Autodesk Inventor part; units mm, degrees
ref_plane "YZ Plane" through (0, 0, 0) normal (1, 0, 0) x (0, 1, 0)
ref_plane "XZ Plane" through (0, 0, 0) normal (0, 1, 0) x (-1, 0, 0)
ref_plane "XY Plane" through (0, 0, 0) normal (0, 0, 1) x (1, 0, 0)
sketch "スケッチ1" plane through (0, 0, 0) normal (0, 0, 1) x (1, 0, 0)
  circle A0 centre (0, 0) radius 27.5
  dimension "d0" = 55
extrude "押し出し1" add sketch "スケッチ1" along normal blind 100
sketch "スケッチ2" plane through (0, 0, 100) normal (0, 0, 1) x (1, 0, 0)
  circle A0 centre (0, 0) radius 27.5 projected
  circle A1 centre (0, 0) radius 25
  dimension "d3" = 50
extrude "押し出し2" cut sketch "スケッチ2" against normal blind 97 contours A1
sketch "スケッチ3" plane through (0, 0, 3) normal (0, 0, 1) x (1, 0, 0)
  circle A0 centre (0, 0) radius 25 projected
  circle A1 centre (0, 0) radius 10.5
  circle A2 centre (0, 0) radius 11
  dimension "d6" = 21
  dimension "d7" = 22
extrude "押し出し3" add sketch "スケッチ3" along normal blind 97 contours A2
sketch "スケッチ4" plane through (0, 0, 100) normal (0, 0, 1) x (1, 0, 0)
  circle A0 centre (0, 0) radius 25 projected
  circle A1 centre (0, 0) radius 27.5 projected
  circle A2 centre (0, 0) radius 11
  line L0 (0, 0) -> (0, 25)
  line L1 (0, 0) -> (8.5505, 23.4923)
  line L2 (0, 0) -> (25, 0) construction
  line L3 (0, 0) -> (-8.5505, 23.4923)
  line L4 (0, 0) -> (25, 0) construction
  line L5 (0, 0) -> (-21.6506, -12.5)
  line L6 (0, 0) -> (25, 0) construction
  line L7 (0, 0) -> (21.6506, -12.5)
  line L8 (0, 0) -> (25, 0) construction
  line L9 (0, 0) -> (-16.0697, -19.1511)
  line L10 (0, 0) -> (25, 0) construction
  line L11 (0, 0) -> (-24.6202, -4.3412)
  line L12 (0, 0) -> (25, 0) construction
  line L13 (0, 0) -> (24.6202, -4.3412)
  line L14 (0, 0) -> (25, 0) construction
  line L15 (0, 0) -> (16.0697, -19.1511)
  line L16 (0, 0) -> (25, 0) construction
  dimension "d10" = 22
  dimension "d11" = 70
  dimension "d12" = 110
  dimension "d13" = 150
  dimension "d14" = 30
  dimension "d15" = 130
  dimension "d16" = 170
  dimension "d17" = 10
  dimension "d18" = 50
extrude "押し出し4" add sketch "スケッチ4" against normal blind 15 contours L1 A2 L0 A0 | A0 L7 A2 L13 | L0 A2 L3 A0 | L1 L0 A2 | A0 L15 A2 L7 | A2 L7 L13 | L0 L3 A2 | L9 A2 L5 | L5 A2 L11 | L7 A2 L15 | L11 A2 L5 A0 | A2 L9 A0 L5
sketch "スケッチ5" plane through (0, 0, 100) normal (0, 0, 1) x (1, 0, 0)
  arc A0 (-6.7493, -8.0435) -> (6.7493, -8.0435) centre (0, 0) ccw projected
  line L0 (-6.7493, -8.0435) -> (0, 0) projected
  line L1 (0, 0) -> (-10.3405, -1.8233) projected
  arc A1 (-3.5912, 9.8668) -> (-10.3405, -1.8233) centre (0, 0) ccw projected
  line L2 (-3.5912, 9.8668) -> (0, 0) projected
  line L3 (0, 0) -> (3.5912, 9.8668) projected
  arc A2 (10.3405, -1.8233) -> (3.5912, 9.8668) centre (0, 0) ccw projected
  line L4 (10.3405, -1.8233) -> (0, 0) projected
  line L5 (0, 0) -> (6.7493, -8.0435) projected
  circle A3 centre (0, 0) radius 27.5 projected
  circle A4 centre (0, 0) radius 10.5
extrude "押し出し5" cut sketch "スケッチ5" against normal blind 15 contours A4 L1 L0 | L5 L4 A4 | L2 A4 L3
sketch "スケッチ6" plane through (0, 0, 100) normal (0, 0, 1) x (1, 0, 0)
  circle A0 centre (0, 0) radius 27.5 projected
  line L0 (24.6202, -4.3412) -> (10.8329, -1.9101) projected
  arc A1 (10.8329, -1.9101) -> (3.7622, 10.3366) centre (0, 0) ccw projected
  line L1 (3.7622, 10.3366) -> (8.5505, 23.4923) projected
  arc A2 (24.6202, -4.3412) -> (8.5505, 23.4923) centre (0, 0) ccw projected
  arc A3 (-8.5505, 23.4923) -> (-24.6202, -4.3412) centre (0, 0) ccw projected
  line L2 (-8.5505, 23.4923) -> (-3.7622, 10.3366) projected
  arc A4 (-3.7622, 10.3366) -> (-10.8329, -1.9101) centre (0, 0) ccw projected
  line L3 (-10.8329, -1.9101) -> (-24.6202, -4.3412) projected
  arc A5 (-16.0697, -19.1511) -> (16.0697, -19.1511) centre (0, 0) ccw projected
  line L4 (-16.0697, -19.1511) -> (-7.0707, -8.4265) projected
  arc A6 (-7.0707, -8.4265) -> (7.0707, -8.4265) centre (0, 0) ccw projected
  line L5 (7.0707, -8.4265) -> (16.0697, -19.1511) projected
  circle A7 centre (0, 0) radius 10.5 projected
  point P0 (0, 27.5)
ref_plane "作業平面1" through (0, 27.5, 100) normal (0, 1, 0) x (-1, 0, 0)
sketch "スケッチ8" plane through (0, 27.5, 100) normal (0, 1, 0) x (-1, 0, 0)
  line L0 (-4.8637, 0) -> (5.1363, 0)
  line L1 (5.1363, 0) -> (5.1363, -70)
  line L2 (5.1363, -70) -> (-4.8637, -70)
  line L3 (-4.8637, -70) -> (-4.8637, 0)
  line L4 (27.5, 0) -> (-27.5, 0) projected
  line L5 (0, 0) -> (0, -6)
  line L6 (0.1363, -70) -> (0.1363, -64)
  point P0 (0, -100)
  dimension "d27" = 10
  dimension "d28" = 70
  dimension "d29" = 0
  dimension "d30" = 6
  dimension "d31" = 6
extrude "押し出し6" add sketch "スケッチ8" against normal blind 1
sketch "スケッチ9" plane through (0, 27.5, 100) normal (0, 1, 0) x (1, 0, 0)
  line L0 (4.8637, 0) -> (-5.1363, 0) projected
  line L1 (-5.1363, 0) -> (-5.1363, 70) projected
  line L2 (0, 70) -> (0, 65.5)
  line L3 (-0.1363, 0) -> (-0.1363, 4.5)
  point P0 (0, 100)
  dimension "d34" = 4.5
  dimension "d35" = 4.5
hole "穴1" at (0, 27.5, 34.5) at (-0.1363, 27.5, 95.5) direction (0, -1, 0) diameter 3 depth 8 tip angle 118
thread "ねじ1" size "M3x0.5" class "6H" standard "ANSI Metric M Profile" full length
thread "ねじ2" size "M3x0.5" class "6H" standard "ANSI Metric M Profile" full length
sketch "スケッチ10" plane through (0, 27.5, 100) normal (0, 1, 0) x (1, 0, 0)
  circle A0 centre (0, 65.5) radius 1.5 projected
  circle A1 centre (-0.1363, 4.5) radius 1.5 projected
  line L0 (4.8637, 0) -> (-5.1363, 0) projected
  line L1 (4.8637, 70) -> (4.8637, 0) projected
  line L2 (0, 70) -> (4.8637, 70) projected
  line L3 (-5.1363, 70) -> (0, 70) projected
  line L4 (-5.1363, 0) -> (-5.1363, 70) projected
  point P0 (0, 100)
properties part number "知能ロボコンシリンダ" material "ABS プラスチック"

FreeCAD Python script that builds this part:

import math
import FreeCAD as App
import Part
import Sketcher
from FreeCAD import Vector
Q = App.Units.Quantity

doc = App.newDocument("Part")
body = doc.addObject("PartDesign::Body", "Body")

# Sketch on XY plane
sketch1 = body.newObject("Sketcher::SketchObject", "Sketch")
sketch1.AttachmentSupport = (doc.getObject("XY_Plane"), [""])
sketch1.MapMode = "FlatFace"
sketch1.addGeometry(Part.Circle(Vector(0, 0, 0), Vector(0, 0, 1), 27.5), False)
sketch1.addConstraint(Sketcher.Constraint("Coincident", 0, 3, -1, 1))
sketch1.addConstraint(Sketcher.Constraint("Diameter", 0, 55.0))
pad1 = body.newObject("PartDesign::Pad", "Pad")
pad1.Profile = sketch1
pad1.Length = 100

# Sketch on XY plane
sketch2 = body.newObject("Sketcher::SketchObject", "Sketch001")
sketch2.AttachmentSupport = (doc.getObject("XY_Plane"), [""])
sketch2.MapMode = "FlatFace"
sketch2.AttachmentOffset = App.Placement(Vector(0, 0, 100), App.Rotation())
sketch2.addGeometry(Part.Circle(Vector(0, 0, 0), Vector(0, 0, 1), 25), False)
sketch2.addConstraint(Sketcher.Constraint("Coincident", 0, 3, -1, 1))
sketch2.addConstraint(Sketcher.Constraint("Diameter", 0, 50.0))
pocket1 = body.newObject("PartDesign::Pocket", "Pocket")
pocket1.Profile = sketch2
pocket1.Length = 97

# Sketch on XY plane
sketch3 = body.newObject("Sketcher::SketchObject", "Sketch002")
sketch3.AttachmentSupport = (doc.getObject("XY_Plane"), [""])
sketch3.MapMode = "FlatFace"
sketch3.AttachmentOffset = App.Placement(Vector(0, 0, 3), App.Rotation())
sketch3.addGeometry(Part.Circle(Vector(0, 0, 0), Vector(0, 0, 1), 11), False)
sketch3.addGeometry(Part.Circle(Vector(0, 0, 0), Vector(0, 0, 1), 10.5), False)
sketch3.addConstraint(Sketcher.Constraint("Coincident", 0, 3, -1, 1))
sketch3.addConstraint(Sketcher.Constraint("Coincident", 1, 3, -1, 1))
sketch3.addConstraint(Sketcher.Constraint("Diameter", 0, 22.0))
sketch3.addConstraint(Sketcher.Constraint("Diameter", 1, 21.0))
pad2 = body.newObject("PartDesign::Pad", "Pad001")
pad2.Profile = sketch3
pad2.Length = 97

# Sketch on XY plane
sketch4 = body.newObject("Sketcher::SketchObject", "Sketch003")
sketch4.AttachmentSupport = (doc.getObject("XY_Plane"), [""])
sketch4.MapMode = "FlatFace"
sketch4.AttachmentOffset = App.Placement(Vector(0, 0, 100), App.Rotation())
sketch4.addGeometry(Part.ArcOfCircle(Part.Circle(Vector(0, 0, 0), Vector(0, 0, 1), 25), math.radians(69.999996), math.radians(110.000004)), False)
sketch4.addGeometry(Part.LineSegment(Vector(-8.5505, 23.4923, 0), Vector(0, 0, 0)), False)
sketch4.addGeometry(Part.LineSegment(Vector(0, 0, 0), Vector(8.5505, 23.4923, 0)), False)
sketch4.addGeometry(Part.LineSegment(Vector(24.6202, -4.3412, 0), Vector(0, 0, 0)), False)
sketch4.addGeometry(Part.LineSegment(Vector(0, 0, 0), Vector(16.0697, -19.1511, 0)), False)
sketch4.addGeometry(Part.ArcOfCircle(Part.Circle(Vector(0, 0, 0), Vector(0, 0, 1), 25), math.radians(-49.999967), math.radians(-9.999988)), False)
sketch4.addGeometry(Part.LineSegment(Vector(0, 0, 0), Vector(-24.6202, -4.3412, 0)), False)
sketch4.addGeometry(Part.ArcOfCircle(Part.Circle(Vector(0, 0, 0), Vector(0, 0, 1), 25), math.radians(-170.000012), math.radians(-130.000033)), False)
sketch4.addGeometry(Part.LineSegment(Vector(-16.0697, -19.1511, 0), Vector(0, 0, 0)), False)
sketch4.addConstraint(Sketcher.Constraint("Coincident", 0, 2, 1, 1))
sketch4.addConstraint(Sketcher.Constraint("Coincident", 1, 2, 2, 1))
sketch4.addConstraint(Sketcher.Constraint("Coincident", 2, 2, 0, 1))
sketch4.addConstraint(Sketcher.Constraint("Coincident", 3, 2, 4, 1))
sketch4.addConstraint(Sketcher.Constraint("Coincident", 4, 2, 5, 1))
sketch4.addConstraint(Sketcher.Constraint("Coincident", 5, 2, 3, 1))
sketch4.addConstraint(Sketcher.Constraint("Coincident", 6, 2, 7, 1))
sketch4.addConstraint(Sketcher.Constraint("Coincident", 7, 2, 8, 1))
sketch4.addConstraint(Sketcher.Constraint("Coincident", 8, 2, 6, 1))
sketch4.addConstraint(Sketcher.Constraint("Coincident", 0, 3, -1, 1))
sketch4.addConstraint(Sketcher.Constraint("Coincident", 5, 3, -1, 1))
sketch4.addConstraint(Sketcher.Constraint("Coincident", 7, 3, -1, 1))
sketch4.addConstraint(Sketcher.Constraint("Coincident", 1, 2, -1, 1))
sketch4.addConstraint(Sketcher.Constraint("Coincident", 3, 2, -1, 1))
sketch4.addConstraint(Sketcher.Constraint("Coincident", 8, 2, -1, 1))
sketch4.addConstraint(Sketcher.Constraint("Equal", 0, 5))
sketch4.addConstraint(Sketcher.Constraint("Equal", 5, 7))
sketch4.addConstraint(Sketcher.Constraint("Horizontal", 0, 2, 2, 2))
sketch4.addConstraint(Sketcher.Constraint("Horizontal", 5, 2, 6, 2))
sketch4.addConstraint(Sketcher.Constraint("Horizontal", 4, 2, 7, 2))
sketch4.addConstraint(Sketcher.Constraint("Radius", 0, 25.0))
sketch4.addConstraint(Sketcher.Constraint("Angle", 1, Q("-70 deg")))
sketch4.addConstraint(Sketcher.Constraint("Angle", 3, Q("170 deg")))
sketch4.addConstraint(Sketcher.Constraint("Angle", 4, Q("-50 deg")))
pad3 = body.newObject("PartDesign::Pad", "Pad002")
pad3.Profile = sketch4
pad3.Length = 15
pad3.Reversed = True

# Sketch on XY plane
sketch5 = body.newObject("Sketcher::SketchObject", "Sketch004")
sketch5.AttachmentSupport = (doc.getObject("XY_Plane"), [""])
sketch5.MapMode = "FlatFace"
sketch5.AttachmentOffset = App.Placement(Vector(0, 0, 100), App.Rotation())
sketch5.addGeometry(Part.ArcOfCircle(Part.Circle(Vector(0, 0, 0), Vector(0, 0, 1), 10.5), math.radians(-170.000049), math.radians(-130.000009)), False)
sketch5.addGeometry(Part.LineSegment(Vector(-6.7493, -8.0435, 0), Vector(0, 0, 0)), False)
sketch5.addGeometry(Part.LineSegment(Vector(0, 0, 0), Vector(-10.3405, -1.8233, 0)), False)
sketch5.addGeometry(Part.LineSegment(Vector(0, 0, 0), Vector(6.7493, -8.0435, 0)), False)
sketch5.addGeometry(Part.ArcOfCircle(Part.Circle(Vector(0, 0, 0), Vector(0, 0, 1), 10.5), math.radians(-49.999991), math.radians(-9.999951)), False)
sketch5.addGeometry(Part.LineSegment(Vector(10.3405, -1.8233, 0), Vector(0, 0, 0)), False)
sketch5.addGeometry(Part.LineSegment(Vector(-3.5912, 9.8668, 0), Vector(0, 0, 0)), False)
sketch5.addGeometry(Part.LineSegment(Vector(0, 0, 0), Vector(3.5912, 9.8668, 0)), False)
sketch5.addGeometry(Part.ArcOfCircle(Part.Circle(Vector(0, 0, 0), Vector(0, 0, 1), 10.5), math.radians(70.00011), math.radians(109.99989)), False)
sketch5.addConstraint(Sketcher.Constraint("Coincident", 0, 2, 1, 1))
sketch5.addConstraint(Sketcher.Constraint("Coincident", 1, 2, 2, 1))
sketch5.addConstraint(Sketcher.Constraint("Coincident", 2, 2, 0, 1))
sketch5.addConstraint(Sketcher.Constraint("Coincident", 3, 2, 4, 1))
sketch5.addConstraint(Sketcher.Constraint("Coincident", 4, 2, 5, 1))
sketch5.addConstraint(Sketcher.Constraint("Coincident", 5, 2, 3, 1))
sketch5.addConstraint(Sketcher.Constraint("Coincident", 6, 2, 7, 1))
sketch5.addConstraint(Sketcher.Constraint("Coincident", 7, 2, 8, 1))
sketch5.addConstraint(Sketcher.Constraint("Coincident", 8, 2, 6, 1))
sketch5.addConstraint(Sketcher.Constraint("Coincident", 0, 3, -1, 1))
sketch5.addConstraint(Sketcher.Constraint("Coincident", 4, 3, -1, 1))
sketch5.addConstraint(Sketcher.Constraint("Coincident", 8, 3, -1, 1))
sketch5.addConstraint(Sketcher.Constraint("Coincident", 1, 2, -1, 1))
sketch5.addConstraint(Sketcher.Constraint("Coincident", 5, 2, -1, 1))
sketch5.addConstraint(Sketcher.Constraint("Coincident", 6, 2, -1, 1))
sketch5.addConstraint(Sketcher.Constraint("Equal", 0, 4))
sketch5.addConstraint(Sketcher.Constraint("Equal", 4, 8))
sketch5.addConstraint(Sketcher.Constraint("Horizontal", 0, 2, 3, 2))
sketch5.addConstraint(Sketcher.Constraint("Horizontal", 2, 2, 4, 2))
sketch5.addConstraint(Sketcher.Constraint("Horizontal", 7, 2, 8, 2))
sketch5.addConstraint(Sketcher.Constraint("Radius", 0, 10.5))
sketch5.addConstraint(Sketcher.Constraint("Angle", 1, Q("50 deg")))
sketch5.addConstraint(Sketcher.Constraint("Angle", 2, Q("-170 deg")))
sketch5.addConstraint(Sketcher.Constraint("Angle", 6, Q("-70 deg")))
pocket2 = body.newObject("PartDesign::Pocket", "Pocket001")
pocket2.Profile = sketch5
pocket2.Length = 15

# Sketch on XZ plane
sketch6 = body.newObject("Sketcher::SketchObject", "Sketch005")
sketch6.AttachmentSupport = (doc.getObject("XZ_Plane"), [""])
sketch6.MapMode = "FlatFace"
sketch6.AttachmentOffset = App.Placement(Vector(0, 0, -27.5), App.Rotation())
sketch6.addGeometry(Part.LineSegment(Vector(-5.1363, 100, 0), Vector(4.8637, 100, 0)), False)
sketch6.addGeometry(Part.LineSegment(Vector(4.8637, 100, 0), Vector(4.8637, 30, 0)), False)
sketch6.addGeometry(Part.LineSegment(Vector(4.8637, 30, 0), Vector(-5.1363, 30, 0)), False)
sketch6.addGeometry(Part.LineSegment(Vector(-5.1363, 30, 0), Vector(-5.1363, 100, 0)), False)
sketch6.addConstraint(Sketcher.Constraint("Coincident", 0, 2, 1, 1))
sketch6.addConstraint(Sketcher.Constraint("Coincident", 1, 2, 2, 1))
sketch6.addConstraint(Sketcher.Constraint("Coincident", 2, 2, 3, 1))
sketch6.addConstraint(Sketcher.Constraint("Coincident", 3, 2, 0, 1))
sketch6.addConstraint(Sketcher.Constraint("Horizontal", 0))
sketch6.addConstraint(Sketcher.Constraint("Vertical", 1))
sketch6.addConstraint(Sketcher.Constraint("Horizontal", 2))
sketch6.addConstraint(Sketcher.Constraint("Vertical", 3))
sketch6.addConstraint(Sketcher.Constraint("DistanceX", 0, 1, 0, 2, 10.0))
sketch6.addConstraint(Sketcher.Constraint("DistanceY", 1, 2, 1, 1, 70.0))
sketch6.addConstraint(Sketcher.Constraint("DistanceY", -1, 1, 0, 2, 100.0))
sketch6.addConstraint(Sketcher.Constraint("DistanceX", -1, 1, 0, 2, 4.8637))
pad4 = body.newObject("PartDesign::Pad", "Pad003")
pad4.Profile = sketch6
pad4.Length = 1

# Sketch on XZ plane
sketch7 = body.newObject("Sketcher::SketchObject", "Sketch006")
sketch7.AttachmentSupport = (doc.getObject("XZ_Plane"), [""])
sketch7.MapMode = "FlatFace"
sketch7.AttachmentOffset = App.Placement(Vector(0, 0, -27.5), App.Rotation())
sketch7.addGeometry(Part.Circle(Vector(0, 34.5, 0), Vector(0, 0, 1), 1.5), False)
sketch7.addGeometry(Part.Circle(Vector(-0.1363, 95.5, 0), Vector(0, 0, 1), 1.5), False)
sketch7.addConstraint(Sketcher.Constraint("Equal", 0, 1))
sketch7.addConstraint(Sketcher.Constraint("PointOnObject", 0, 3, -2))
sketch7.addConstraint(Sketcher.Constraint("Diameter", 0, 3.0))
sketch7.addConstraint(Sketcher.Constraint("DistanceY", 0, 3, 1, 3, 61.0))
sketch7.addConstraint(Sketcher.Constraint("DistanceY", -1, 1, 0, 3, 34.5))
sketch7.addConstraint(Sketcher.Constraint("DistanceX", 1, 3, -1, 1, 0.1363))
doc.recompute()
hole = body.newObject("PartDesign::Hole", "Hole")
hole.Profile = sketch7
hole.ThreadType = "None"
hole.Diameter = 3
hole.DepthType = "Dimension"
hole.Depth = 8
hole.DrillPoint = "Angled"
hole.DrillPointAngle = 118
hole.Reversed = True

doc.recompute()
